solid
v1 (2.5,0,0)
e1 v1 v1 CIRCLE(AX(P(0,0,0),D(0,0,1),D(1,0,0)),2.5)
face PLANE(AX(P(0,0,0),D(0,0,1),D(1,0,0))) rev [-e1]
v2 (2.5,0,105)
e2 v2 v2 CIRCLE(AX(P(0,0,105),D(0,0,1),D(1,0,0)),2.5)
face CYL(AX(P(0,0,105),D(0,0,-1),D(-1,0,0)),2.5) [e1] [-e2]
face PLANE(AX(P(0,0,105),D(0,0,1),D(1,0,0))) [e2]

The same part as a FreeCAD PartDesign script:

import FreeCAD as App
import Part
import Sketcher
Q = App.Units.Quantity

doc = App.newDocument("Part")
body = doc.addObject("PartDesign::Body", "Body")

sketch1 = body.newObject("Sketcher::SketchObject", "Sketch")
sketch1.AttachmentSupport = (doc.getObject("XY_Plane"), [""])
sketch1.MapMode = "FlatFace"
sketch1.addGeometry(Part.Circle(App.Vector(0, 0, 0), App.Vector(0, 0, 1), 2.5), False)
sketch1.addConstraint(Sketcher.Constraint("Coincident", 0, 3, -1, 1))
sketch1.addConstraint(Sketcher.Constraint("Diameter", 0, Q("5 mm")))
pad1 = body.newObject("PartDesign::Pad", "Pad")
pad1.Profile = sketch1
pad1.Length = 105

doc.recompute()
